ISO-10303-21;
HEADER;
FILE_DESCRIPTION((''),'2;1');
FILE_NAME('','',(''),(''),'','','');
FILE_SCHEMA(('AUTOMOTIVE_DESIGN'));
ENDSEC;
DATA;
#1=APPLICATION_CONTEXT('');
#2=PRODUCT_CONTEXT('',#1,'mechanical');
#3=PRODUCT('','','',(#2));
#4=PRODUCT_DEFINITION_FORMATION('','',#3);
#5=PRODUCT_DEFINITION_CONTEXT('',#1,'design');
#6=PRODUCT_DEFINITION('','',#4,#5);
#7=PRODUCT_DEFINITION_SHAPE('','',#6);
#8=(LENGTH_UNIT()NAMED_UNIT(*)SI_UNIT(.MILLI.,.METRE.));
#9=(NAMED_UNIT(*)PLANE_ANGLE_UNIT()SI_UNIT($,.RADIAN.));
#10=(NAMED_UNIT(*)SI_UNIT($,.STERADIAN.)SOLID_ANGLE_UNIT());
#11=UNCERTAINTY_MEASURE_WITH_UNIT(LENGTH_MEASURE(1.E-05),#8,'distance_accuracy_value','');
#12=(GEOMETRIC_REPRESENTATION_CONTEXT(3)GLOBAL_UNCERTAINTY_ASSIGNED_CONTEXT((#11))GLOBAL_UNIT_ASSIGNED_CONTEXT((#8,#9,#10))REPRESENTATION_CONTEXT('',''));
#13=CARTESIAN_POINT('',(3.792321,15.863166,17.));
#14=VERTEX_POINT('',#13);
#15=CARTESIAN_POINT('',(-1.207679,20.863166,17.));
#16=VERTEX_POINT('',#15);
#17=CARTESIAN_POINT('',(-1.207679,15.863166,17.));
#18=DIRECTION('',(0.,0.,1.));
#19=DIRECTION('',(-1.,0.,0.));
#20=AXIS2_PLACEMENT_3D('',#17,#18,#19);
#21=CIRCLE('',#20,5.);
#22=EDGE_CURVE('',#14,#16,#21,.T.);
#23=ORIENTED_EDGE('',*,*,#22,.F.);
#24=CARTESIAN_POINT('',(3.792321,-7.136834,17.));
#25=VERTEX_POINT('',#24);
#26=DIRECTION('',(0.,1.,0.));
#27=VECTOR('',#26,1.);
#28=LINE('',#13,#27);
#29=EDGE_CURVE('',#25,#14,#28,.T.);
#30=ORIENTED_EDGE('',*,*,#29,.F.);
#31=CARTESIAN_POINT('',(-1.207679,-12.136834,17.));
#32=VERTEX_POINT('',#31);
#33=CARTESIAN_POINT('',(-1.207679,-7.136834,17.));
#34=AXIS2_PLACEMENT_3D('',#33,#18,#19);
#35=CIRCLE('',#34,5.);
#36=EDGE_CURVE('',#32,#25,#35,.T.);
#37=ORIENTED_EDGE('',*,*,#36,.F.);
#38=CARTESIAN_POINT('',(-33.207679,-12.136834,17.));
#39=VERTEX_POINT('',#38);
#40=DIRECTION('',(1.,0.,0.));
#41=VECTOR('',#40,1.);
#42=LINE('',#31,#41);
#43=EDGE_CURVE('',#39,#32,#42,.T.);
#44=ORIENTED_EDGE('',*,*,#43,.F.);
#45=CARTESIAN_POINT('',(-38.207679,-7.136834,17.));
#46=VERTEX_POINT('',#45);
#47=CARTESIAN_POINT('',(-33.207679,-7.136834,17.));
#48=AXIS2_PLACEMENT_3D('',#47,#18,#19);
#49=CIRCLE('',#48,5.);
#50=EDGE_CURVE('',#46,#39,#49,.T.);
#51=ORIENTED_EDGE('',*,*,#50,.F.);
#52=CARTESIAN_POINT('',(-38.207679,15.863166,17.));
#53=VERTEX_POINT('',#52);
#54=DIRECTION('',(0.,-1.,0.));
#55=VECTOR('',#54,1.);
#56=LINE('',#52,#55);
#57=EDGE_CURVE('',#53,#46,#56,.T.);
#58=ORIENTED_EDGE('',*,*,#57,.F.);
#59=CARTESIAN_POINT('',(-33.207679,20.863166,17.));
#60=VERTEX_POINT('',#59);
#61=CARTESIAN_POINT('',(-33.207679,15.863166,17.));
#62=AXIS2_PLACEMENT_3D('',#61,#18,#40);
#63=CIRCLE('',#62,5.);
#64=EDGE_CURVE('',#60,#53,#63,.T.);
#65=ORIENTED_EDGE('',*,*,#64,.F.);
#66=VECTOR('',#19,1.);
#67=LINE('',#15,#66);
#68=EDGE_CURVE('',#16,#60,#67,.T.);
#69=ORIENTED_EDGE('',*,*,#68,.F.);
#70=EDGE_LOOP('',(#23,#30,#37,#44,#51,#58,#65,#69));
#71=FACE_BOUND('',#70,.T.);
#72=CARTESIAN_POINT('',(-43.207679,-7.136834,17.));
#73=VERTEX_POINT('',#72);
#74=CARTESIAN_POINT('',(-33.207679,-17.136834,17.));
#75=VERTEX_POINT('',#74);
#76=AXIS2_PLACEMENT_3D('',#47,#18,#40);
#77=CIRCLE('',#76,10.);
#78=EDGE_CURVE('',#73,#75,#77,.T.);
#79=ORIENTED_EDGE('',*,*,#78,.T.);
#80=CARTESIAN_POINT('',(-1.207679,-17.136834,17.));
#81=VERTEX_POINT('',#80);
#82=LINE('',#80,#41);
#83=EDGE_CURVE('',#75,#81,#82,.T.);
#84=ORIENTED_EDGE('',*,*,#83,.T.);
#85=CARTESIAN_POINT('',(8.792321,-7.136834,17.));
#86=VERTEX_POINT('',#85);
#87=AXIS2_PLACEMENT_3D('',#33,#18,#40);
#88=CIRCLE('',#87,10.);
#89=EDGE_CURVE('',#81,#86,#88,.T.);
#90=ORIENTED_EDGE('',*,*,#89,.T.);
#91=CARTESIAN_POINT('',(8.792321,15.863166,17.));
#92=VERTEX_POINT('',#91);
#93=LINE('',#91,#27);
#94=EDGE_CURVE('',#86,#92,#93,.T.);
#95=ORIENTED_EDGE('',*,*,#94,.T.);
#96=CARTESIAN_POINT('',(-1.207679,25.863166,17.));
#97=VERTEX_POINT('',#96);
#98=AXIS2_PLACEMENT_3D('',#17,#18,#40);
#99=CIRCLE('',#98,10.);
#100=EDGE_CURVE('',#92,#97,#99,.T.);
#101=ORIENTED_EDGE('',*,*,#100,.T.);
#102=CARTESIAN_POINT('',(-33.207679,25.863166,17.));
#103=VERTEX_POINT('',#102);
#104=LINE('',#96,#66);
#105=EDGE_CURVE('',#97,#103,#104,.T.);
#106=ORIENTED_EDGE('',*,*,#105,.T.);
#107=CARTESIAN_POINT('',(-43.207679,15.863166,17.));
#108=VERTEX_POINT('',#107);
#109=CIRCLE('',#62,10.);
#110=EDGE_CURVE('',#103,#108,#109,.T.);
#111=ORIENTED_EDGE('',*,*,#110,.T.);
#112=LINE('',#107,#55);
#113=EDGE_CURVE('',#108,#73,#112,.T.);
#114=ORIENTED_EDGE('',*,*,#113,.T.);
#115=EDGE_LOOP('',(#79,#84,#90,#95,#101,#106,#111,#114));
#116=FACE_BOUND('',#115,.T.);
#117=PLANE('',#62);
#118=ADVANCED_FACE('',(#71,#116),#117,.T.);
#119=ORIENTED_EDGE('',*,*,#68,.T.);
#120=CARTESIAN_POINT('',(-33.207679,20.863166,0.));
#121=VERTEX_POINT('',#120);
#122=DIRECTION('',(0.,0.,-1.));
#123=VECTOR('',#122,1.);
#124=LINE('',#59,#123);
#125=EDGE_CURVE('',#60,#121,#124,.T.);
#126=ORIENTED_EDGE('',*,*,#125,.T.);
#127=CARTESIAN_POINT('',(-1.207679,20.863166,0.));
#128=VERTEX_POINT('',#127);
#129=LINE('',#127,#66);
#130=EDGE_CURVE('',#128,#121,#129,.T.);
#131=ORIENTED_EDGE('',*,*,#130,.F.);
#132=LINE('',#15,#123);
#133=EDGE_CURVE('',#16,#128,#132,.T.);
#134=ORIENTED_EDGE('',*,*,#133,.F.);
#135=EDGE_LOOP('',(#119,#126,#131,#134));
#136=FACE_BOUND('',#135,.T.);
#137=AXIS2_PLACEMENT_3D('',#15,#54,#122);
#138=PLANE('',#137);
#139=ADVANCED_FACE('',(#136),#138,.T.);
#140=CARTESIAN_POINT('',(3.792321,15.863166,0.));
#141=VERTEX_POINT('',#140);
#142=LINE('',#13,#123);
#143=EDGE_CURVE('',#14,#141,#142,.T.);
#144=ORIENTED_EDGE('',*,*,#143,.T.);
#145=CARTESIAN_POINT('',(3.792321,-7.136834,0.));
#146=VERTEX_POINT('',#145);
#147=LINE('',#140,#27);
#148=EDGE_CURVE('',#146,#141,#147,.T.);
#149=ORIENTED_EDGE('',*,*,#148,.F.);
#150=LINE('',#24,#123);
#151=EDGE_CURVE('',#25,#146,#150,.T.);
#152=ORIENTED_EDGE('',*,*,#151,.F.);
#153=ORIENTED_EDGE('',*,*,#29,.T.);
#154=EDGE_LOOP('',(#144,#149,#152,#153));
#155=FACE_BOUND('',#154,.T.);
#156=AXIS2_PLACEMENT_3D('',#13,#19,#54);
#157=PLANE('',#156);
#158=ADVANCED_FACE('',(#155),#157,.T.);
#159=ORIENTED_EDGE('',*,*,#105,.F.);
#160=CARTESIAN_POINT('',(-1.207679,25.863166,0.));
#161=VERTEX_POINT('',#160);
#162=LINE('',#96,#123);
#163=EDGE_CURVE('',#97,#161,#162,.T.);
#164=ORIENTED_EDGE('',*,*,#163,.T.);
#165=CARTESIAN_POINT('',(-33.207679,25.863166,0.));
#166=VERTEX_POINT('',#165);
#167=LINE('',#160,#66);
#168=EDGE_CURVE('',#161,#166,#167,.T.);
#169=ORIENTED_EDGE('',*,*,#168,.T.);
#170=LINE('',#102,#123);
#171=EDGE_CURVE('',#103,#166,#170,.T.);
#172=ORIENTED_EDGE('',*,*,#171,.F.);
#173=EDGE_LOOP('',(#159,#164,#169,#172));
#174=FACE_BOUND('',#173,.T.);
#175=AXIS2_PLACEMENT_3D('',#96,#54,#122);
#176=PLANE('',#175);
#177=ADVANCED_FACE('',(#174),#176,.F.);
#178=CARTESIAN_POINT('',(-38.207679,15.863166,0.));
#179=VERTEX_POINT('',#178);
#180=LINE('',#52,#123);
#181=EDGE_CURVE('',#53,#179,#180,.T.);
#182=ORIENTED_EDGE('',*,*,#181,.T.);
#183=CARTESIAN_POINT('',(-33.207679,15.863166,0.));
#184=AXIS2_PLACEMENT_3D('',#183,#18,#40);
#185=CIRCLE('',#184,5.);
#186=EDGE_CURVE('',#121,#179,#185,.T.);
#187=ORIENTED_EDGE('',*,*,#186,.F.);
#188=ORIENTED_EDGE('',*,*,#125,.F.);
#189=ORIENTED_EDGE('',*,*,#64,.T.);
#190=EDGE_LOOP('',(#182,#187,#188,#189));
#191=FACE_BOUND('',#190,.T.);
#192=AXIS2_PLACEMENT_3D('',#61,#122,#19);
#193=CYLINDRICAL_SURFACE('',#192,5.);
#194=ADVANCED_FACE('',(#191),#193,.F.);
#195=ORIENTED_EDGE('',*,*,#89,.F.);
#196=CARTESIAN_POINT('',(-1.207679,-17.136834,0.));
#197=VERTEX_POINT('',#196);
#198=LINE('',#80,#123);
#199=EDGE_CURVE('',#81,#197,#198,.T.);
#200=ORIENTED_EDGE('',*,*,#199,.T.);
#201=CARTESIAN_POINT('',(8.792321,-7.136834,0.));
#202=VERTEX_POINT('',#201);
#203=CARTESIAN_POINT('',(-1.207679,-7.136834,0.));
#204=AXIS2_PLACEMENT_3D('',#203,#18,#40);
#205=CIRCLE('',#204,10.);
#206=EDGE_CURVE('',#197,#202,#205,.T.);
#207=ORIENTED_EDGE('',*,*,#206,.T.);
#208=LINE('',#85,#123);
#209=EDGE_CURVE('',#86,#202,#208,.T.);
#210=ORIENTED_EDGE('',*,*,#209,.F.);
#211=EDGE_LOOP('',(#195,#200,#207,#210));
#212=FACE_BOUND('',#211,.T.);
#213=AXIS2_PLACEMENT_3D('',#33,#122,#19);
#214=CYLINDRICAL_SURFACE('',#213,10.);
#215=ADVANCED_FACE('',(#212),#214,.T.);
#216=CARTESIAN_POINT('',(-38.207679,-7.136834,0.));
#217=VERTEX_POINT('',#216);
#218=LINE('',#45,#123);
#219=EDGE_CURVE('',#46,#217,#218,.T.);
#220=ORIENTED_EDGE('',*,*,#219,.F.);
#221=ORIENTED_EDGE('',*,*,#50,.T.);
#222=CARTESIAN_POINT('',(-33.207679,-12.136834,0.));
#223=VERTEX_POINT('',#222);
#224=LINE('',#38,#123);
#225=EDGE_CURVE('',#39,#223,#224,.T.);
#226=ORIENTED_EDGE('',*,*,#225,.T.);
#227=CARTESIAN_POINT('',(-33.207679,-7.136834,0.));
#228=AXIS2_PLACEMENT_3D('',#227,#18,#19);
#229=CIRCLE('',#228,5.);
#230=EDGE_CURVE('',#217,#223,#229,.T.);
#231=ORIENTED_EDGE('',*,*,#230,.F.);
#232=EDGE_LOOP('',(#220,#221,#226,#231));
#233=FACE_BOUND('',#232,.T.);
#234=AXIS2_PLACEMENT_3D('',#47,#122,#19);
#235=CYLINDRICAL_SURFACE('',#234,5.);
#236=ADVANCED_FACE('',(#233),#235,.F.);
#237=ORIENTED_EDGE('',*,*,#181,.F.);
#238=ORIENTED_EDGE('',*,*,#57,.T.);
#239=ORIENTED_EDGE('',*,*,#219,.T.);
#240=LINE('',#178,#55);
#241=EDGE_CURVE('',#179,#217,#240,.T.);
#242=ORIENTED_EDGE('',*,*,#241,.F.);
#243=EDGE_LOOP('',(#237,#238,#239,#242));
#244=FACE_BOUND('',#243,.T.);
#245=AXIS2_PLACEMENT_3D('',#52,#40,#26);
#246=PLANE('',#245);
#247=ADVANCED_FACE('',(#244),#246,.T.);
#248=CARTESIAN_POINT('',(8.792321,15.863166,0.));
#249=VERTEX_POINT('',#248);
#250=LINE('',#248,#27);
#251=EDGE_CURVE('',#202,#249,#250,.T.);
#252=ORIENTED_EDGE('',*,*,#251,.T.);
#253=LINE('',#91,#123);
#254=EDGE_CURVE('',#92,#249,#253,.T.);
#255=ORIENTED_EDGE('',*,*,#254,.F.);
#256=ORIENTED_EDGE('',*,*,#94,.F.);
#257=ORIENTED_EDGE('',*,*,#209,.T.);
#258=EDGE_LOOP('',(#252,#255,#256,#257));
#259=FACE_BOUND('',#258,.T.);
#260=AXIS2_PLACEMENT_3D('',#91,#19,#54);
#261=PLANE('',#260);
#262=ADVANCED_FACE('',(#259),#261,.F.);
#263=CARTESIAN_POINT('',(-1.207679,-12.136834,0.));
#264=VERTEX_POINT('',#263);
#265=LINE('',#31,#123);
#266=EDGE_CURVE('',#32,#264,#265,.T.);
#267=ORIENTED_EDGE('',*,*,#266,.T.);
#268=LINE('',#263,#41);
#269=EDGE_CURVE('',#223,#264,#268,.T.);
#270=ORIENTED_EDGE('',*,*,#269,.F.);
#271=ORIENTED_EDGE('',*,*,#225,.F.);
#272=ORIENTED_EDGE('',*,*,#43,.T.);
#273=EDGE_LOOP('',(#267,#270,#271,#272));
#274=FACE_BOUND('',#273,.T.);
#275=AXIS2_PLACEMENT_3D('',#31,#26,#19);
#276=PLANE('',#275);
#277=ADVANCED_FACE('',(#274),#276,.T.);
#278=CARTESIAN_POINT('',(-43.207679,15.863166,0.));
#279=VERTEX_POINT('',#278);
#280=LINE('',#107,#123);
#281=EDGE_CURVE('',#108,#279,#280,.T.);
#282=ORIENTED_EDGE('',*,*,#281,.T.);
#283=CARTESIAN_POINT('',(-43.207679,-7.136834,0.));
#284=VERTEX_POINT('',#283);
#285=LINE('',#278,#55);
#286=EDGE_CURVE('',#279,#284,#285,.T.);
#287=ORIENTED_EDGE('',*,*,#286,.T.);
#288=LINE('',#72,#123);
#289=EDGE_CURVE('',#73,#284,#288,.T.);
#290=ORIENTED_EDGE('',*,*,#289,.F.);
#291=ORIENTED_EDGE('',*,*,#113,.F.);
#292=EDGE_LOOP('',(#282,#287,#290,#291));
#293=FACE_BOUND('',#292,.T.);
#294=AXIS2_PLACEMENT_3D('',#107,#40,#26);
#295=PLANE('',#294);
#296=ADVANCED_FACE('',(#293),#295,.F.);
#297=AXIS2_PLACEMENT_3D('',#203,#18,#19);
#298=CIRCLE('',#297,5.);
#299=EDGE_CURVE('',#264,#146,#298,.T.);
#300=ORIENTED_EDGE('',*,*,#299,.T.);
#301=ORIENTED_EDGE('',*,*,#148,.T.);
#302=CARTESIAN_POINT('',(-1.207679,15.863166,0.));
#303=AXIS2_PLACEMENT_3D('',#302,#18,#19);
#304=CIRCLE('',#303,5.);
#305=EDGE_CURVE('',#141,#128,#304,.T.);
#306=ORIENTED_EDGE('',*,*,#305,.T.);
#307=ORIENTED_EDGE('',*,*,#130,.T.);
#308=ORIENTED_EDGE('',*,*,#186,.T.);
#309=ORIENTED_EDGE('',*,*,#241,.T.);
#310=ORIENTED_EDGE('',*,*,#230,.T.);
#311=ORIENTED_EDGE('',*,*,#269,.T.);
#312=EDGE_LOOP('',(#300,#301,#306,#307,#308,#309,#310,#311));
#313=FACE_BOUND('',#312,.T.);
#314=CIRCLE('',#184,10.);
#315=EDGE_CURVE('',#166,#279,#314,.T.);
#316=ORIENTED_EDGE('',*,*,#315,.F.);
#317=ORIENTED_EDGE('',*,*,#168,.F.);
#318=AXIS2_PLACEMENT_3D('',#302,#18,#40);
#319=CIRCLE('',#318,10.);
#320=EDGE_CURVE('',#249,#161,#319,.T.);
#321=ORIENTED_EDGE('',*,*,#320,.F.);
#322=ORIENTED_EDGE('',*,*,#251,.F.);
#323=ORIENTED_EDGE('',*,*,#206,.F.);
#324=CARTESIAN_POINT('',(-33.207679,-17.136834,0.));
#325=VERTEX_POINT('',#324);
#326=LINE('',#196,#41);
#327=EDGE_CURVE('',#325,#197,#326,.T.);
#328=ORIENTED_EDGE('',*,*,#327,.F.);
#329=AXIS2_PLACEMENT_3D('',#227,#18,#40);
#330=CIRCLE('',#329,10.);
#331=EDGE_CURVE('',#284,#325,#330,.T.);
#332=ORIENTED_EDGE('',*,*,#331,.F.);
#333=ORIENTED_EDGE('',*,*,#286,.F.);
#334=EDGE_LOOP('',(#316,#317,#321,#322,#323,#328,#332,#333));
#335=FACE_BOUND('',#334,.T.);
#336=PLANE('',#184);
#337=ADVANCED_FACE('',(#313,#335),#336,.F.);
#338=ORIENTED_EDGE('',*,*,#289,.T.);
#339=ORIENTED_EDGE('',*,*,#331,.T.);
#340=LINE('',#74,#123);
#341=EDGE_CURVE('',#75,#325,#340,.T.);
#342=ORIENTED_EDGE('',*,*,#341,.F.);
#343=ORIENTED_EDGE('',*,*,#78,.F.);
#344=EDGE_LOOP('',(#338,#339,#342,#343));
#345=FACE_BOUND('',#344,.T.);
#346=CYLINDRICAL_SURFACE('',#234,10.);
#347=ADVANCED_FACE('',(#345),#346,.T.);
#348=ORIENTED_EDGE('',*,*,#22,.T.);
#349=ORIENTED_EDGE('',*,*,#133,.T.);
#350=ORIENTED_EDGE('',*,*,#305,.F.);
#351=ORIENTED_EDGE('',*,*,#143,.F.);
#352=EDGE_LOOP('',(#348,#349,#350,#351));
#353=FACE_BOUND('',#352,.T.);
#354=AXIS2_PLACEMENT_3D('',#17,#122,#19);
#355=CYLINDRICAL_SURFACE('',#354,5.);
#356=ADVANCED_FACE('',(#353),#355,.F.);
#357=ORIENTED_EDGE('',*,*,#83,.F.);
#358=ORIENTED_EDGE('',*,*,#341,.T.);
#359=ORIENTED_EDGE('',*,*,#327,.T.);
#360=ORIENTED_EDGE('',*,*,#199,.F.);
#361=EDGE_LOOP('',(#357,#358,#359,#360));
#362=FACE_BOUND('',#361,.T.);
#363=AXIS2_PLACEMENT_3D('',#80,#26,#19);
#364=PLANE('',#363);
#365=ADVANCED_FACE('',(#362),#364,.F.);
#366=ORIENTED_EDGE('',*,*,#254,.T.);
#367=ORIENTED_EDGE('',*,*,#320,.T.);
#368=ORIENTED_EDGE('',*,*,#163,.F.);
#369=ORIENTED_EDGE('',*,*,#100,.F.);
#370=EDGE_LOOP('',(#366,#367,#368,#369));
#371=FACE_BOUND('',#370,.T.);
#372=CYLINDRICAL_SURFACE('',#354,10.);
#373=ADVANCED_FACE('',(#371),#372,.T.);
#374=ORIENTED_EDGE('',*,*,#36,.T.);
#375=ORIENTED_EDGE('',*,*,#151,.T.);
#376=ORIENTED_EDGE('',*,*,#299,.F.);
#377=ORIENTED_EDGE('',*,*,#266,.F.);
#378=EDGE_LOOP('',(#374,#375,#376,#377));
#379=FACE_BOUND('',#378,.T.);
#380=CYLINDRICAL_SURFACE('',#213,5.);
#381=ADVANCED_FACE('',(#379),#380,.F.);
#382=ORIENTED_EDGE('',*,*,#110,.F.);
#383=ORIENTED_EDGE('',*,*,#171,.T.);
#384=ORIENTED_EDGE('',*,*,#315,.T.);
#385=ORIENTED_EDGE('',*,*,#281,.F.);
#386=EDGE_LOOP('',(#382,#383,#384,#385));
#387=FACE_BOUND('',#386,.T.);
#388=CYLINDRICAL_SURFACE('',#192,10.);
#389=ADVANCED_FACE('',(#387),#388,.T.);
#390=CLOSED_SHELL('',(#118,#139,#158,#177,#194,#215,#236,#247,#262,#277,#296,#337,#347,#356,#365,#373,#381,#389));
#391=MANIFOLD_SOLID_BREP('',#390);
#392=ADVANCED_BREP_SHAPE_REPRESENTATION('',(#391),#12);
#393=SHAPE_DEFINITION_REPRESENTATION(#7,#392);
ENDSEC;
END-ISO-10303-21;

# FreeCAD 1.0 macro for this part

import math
import FreeCAD as App
import Part
import Sketcher
from FreeCAD import Vector

doc = App.newDocument("Part")
body = doc.addObject("PartDesign::Body", "Body")

sketch1 = body.newObject("Sketcher::SketchObject", "Sketch")
sketch1.AttachmentSupport = (doc.getObject("XY_Plane"), [""])
sketch1.MapMode = "FlatFace"
sketch1.addGeometry([
    Part.LineSegment(Vector(-33, -17, 0), Vector(-1, -17, 0)),
    Part.ArcOfCircle(Part.Circle(Vector(-1, -7, 0), Vector(0, 0, 1), 10), math.radians(-90), math.radians(0)),
    Part.LineSegment(Vector(9, -7, 0), Vector(9, 16, 0)),
    Part.ArcOfCircle(Part.Circle(Vector(-1, 16, 0), Vector(0, 0, 1), 10), math.radians(0), math.radians(90)),
    Part.LineSegment(Vector(-1, 26, 0), Vector(-33, 26, 0)),
    Part.ArcOfCircle(Part.Circle(Vector(-33, 16, 0), Vector(0, 0, 1), 10), math.radians(90), math.radians(180)),
    Part.LineSegment(Vector(-43, 16, 0), Vector(-43, -7, 0)),
    Part.ArcOfCircle(Part.Circle(Vector(-33, -7, 0), Vector(0, 0, 1), 10), math.radians(180), math.radians(270)),
    Part.LineSegment(Vector(-1, -12, 0), Vector(-33, -12, 0)),
    Part.ArcOfCircle(Part.Circle(Vector(-33, -7, 0), Vector(0, 0, 1), 5), math.radians(180), math.radians(270)),
    Part.LineSegment(Vector(-38, -7, 0), Vector(-38, 16, 0)),
    Part.ArcOfCircle(Part.Circle(Vector(-33, 16, 0), Vector(0, 0, 1), 5), math.radians(90), math.radians(180)),
    Part.LineSegment(Vector(-33, 21, 0), Vector(-1, 21, 0)),
    Part.ArcOfCircle(Part.Circle(Vector(-1, 16, 0), Vector(0, 0, 1), 5), math.radians(0), math.radians(90)),
    Part.LineSegment(Vector(4, 16, 0), Vector(4, -7, 0)),
    Part.ArcOfCircle(Part.Circle(Vector(-1, -7, 0), Vector(0, 0, 1), 5), math.radians(-90), math.radians(0)),
], False)
sketch1.addConstraint([
    Sketcher.Constraint("Tangent", 0, 2, 1, 1),
    Sketcher.Constraint("Tangent", 1, 2, 2, 1),
    Sketcher.Constraint("Tangent", 2, 2, 3, 1),
    Sketcher.Constraint("Tangent", 3, 2, 4, 1),
    Sketcher.Constraint("Tangent", 4, 2, 5, 1),
    Sketcher.Constraint("Tangent", 5, 2, 6, 1),
    Sketcher.Constraint("Tangent", 6, 2, 7, 1),
    Sketcher.Constraint("Tangent", 7, 2, 0, 1),
    Sketcher.Constraint("Tangent", 8, 2, 9, 2),
    Sketcher.Constraint("Tangent", 9, 1, 10, 1),
    Sketcher.Constraint("Tangent", 10, 2, 11, 2),
    Sketcher.Constraint("Tangent", 11, 1, 12, 1),
    Sketcher.Constraint("Tangent", 12, 2, 13, 2),
    Sketcher.Constraint("Tangent", 13, 1, 14, 1),
    Sketcher.Constraint("Tangent", 14, 2, 15, 2),
    Sketcher.Constraint("Tangent", 15, 1, 8, 1),
    Sketcher.Constraint("Horizontal", 0),
    Sketcher.Constraint("Vertical", 2),
    Sketcher.Constraint("Horizontal", 4),
    Sketcher.Constraint("Vertical", 6),
    Sketcher.Constraint("Horizontal", 8),
    Sketcher.Constraint("Vertical", 10),
    Sketcher.Constraint("Horizontal", 12),
    Sketcher.Constraint("Vertical", 14),
    Sketcher.Constraint("Coincident", 9, 3, 7, 3),
    Sketcher.Constraint("Coincident", 11, 3, 5, 3),
    Sketcher.Constraint("Coincident", 13, 3, 3, 3),
    Sketcher.Constraint("Equal", 1, 3),
    Sketcher.Constraint("Equal", 3, 5),
    Sketcher.Constraint("Equal", 5, 7),
    Sketcher.Constraint("Equal", 13, 15),
    Sketcher.Constraint("Radius", 1, 10.0),
    Sketcher.Constraint("Radius", 9, 5.0),
    Sketcher.Constraint("DistanceX", 0, 1, 0, 2, 32.0),
    Sketcher.Constraint("DistanceY", 2, 1, 2, 2, 23.0),
    Sketcher.Constraint("DistanceX", 1, 3, -1, 1, 1.207679),
    Sketcher.Constraint("DistanceY", 1, 3, -1, 1, 7.136834),
])
pad1 = body.newObject("PartDesign::Pad", "Pad")
pad1.Profile = sketch1
pad1.Length = 17

doc.recompute()
